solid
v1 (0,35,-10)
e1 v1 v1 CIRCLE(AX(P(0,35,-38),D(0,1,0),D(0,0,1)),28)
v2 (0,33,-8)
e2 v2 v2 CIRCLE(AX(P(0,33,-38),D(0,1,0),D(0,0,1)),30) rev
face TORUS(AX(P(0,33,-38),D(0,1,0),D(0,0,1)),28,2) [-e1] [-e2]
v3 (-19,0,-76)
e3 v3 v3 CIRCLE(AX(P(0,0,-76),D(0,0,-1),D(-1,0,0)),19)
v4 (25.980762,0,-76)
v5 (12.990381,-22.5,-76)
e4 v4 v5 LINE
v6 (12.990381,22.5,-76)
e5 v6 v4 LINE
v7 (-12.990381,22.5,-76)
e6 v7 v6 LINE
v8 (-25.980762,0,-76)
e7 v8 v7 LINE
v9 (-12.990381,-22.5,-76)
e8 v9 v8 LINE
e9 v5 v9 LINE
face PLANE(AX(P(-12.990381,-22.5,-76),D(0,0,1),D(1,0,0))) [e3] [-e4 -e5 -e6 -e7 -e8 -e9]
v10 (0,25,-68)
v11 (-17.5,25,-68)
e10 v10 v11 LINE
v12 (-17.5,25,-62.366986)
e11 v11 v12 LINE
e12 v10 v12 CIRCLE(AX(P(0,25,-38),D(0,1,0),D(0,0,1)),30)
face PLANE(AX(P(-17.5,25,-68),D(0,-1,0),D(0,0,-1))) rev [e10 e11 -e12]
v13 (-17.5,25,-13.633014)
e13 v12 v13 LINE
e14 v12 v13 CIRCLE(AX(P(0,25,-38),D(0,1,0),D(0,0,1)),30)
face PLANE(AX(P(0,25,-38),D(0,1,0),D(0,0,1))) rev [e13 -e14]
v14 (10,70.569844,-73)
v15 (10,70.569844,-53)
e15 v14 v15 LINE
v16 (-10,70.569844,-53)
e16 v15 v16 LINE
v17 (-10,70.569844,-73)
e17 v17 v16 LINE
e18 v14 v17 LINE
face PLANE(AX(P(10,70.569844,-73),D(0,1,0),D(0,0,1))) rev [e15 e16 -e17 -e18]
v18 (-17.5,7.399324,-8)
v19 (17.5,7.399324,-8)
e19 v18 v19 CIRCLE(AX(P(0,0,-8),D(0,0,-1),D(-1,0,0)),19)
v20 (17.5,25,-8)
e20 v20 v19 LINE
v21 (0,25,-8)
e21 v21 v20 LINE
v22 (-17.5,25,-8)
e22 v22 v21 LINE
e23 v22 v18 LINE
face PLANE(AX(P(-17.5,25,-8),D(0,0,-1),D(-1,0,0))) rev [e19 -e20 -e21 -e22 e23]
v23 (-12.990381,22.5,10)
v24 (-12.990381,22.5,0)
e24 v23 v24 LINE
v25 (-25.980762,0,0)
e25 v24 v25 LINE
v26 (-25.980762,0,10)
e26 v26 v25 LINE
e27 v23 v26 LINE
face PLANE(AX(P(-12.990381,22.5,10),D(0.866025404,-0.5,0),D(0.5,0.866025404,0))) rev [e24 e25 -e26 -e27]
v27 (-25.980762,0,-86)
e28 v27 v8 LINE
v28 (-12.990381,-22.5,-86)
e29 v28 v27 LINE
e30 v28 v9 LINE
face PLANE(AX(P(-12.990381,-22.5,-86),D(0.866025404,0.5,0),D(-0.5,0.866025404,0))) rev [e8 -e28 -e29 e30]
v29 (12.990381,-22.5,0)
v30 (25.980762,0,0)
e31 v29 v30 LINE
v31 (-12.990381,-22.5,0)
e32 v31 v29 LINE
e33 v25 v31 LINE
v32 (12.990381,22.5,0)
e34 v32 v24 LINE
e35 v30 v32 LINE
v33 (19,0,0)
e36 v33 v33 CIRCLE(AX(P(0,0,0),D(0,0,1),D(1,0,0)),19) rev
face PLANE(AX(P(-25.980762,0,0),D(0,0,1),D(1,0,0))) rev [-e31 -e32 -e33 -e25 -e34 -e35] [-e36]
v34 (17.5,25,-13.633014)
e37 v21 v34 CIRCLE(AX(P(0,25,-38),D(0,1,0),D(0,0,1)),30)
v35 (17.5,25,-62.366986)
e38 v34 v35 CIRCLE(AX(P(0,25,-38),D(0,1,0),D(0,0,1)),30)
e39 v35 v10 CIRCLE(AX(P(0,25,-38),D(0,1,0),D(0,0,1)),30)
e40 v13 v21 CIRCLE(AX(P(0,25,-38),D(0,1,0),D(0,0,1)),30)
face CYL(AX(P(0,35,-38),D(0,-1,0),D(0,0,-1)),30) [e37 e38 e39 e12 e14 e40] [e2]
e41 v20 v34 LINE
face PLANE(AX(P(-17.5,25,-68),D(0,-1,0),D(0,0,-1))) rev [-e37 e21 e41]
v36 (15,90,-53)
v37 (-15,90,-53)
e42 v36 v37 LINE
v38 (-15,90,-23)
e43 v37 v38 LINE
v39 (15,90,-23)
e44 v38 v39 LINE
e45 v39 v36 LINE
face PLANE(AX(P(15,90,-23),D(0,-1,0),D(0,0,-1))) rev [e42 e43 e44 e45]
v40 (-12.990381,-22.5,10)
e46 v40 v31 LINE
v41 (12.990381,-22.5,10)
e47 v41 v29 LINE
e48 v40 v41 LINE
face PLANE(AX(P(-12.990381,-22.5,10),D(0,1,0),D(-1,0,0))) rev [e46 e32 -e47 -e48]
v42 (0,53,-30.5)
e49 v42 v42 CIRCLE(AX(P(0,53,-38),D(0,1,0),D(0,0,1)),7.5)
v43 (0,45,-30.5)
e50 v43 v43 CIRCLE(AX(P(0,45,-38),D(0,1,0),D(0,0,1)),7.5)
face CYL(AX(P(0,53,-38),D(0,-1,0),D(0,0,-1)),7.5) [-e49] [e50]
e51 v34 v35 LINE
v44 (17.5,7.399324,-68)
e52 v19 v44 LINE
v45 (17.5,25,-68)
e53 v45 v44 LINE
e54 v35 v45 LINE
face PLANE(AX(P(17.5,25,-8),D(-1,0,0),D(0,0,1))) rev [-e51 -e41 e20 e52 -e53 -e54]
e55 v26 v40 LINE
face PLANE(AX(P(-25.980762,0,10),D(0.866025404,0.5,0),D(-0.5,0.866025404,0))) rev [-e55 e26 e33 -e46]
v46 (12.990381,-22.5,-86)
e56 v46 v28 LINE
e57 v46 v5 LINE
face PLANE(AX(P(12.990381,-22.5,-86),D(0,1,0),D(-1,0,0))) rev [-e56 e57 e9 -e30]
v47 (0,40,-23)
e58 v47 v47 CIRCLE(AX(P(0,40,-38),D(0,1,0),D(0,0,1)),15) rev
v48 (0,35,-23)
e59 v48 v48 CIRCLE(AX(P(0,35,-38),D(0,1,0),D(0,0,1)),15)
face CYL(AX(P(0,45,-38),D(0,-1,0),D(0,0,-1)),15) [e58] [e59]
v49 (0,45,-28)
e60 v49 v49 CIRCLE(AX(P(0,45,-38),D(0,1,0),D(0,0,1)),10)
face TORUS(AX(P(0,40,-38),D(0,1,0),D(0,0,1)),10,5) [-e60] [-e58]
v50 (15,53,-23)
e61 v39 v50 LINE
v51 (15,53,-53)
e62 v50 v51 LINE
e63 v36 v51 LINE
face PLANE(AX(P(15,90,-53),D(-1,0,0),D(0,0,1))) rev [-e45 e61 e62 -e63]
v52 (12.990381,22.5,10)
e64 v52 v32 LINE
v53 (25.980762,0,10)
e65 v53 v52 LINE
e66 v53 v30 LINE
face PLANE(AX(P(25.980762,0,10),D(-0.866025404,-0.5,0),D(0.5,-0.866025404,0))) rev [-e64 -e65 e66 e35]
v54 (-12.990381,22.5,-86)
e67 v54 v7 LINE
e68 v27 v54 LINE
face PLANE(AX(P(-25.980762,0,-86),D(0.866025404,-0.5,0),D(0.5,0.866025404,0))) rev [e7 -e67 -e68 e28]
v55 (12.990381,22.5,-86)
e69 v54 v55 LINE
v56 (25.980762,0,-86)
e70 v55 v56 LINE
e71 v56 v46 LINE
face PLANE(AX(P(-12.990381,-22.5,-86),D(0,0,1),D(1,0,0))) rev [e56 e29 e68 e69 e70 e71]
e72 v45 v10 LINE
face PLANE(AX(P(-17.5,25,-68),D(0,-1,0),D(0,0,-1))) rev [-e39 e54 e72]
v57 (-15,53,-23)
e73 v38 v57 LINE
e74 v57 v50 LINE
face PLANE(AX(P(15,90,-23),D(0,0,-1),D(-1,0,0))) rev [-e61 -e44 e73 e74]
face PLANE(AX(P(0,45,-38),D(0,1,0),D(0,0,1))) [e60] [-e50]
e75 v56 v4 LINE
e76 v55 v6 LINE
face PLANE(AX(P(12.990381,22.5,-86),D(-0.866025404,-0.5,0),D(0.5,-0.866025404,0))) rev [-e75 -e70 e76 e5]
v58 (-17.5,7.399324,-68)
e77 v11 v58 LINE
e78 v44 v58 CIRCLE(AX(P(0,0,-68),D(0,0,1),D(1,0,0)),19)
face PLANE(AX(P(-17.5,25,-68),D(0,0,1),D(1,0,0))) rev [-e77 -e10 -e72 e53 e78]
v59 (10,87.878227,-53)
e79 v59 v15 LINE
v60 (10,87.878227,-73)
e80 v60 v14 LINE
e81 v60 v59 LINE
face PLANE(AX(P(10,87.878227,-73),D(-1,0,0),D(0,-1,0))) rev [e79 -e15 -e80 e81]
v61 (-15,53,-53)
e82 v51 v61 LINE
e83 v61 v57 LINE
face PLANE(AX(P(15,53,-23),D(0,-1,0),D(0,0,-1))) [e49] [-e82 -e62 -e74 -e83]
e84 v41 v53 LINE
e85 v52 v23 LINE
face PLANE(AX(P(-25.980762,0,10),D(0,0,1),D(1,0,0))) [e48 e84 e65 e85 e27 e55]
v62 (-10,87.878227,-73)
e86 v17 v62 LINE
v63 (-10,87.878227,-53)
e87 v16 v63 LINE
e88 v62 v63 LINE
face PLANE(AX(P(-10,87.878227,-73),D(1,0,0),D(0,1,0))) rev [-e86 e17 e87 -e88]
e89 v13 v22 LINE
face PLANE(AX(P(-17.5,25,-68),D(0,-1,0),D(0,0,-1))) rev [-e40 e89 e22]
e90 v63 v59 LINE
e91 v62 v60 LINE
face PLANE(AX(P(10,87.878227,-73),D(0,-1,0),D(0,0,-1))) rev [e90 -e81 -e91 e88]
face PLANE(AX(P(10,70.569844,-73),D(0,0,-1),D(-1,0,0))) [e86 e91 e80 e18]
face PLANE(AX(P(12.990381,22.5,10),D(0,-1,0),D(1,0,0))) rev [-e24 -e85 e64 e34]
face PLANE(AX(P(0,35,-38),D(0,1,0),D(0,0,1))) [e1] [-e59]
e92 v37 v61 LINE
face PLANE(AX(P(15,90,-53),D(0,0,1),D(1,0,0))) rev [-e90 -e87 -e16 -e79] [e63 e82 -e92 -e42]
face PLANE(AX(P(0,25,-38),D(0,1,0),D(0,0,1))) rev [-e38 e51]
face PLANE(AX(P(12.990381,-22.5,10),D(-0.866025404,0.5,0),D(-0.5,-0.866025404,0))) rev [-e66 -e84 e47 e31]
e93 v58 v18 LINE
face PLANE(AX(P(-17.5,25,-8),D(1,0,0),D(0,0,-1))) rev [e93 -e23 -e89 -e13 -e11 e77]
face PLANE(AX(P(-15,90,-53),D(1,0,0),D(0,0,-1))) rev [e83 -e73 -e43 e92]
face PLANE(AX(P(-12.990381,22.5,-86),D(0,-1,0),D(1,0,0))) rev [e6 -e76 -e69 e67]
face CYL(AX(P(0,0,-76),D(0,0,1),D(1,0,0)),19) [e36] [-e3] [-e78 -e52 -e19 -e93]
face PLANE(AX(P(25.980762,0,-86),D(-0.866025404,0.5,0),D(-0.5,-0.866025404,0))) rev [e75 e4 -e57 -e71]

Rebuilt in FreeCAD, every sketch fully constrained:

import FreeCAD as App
import Part
import Sketcher

V = App.Vector
Q = App.Units.Quantity


def edges_at(feature, points):
    """Names of the edges that pass closest to the given points."""
    edges = feature.Shape.Edges
    near = lambda p: min(range(len(edges)), key=lambda i: edges[i].distToShape(Part.Vertex(*p))[0])
    return sorted({f"Edge{near(p) + 1}" for p in points})

doc = App.newDocument("Part")
params = doc.addObject("Spreadsheet::Sheet", "Params")
for row, (alias, value) in enumerate([
    ("pad1_length", "10 mm"),
    ("sketch2_diameter", "38 mm"),
    ("pad2_length", "76 mm"),
    ("pad3_length", "10 mm"),
    ("sketch4_width", "35 mm"),
    ("sketch4_height", "60 mm"),
    ("pad4_length", "25 mm"),
    ("sketch5_diameter", "60 mm"),
    ("pad5_length", "10 mm"),
    ("sketch6_diameter", "30 mm"),
    ("pad6_length", "10 mm"),
    ("fillet_radius", "5 mm"),
    ("sketch7_diameter", "15 mm"),
    ("pad7_length", "8 mm"),
    ("sketch8_width", "30 mm"),
    ("pad8_length", "37 mm"),
    ("fillet2_radius", "2 mm"),
    ("sketch9_width", "20 mm"),
    ("pad9_length", "20 mm"),
], start=1):
    params.set(f"A{row}", alias)
    params.set(f"B{row}", "=" + value)
    params.setAlias(f"B{row}", alias)

body = doc.addObject("PartDesign::Body", "Body")

sketch1 = body.newObject("Sketcher::SketchObject", "Sketch")
sketch1.AttachmentSupport = (doc.getObject("XY_Plane"), [""])
sketch1.MapMode = "FlatFace"
sketch1.addGeometry([
    Part.LineSegment(V(-26, 0, 0), V(-13, -22, 0)),
    Part.LineSegment(V(-13, -22, 0), V(13, -22, 0)),
    Part.LineSegment(V(13, -22, 0), V(26, 0, 0)),
    Part.LineSegment(V(26, 0, 0), V(13, 22, 0)),
    Part.LineSegment(V(13, 22, 0), V(-13, 22, 0)),
    Part.LineSegment(V(-13, 22, 0), V(-26, 0, 0)),
], False)
sketch1.addConstraint([
    Sketcher.Constraint("Coincident", 0, 2, 1, 1),
    Sketcher.Constraint("Coincident", 1, 2, 2, 1),
    Sketcher.Constraint("Coincident", 2, 2, 3, 1),
    Sketcher.Constraint("Coincident", 3, 2, 4, 1),
    Sketcher.Constraint("Coincident", 4, 2, 5, 1),
    Sketcher.Constraint("Coincident", 5, 2, 0, 1),
    Sketcher.Constraint("Horizontal", 1),
    Sketcher.Constraint("Horizontal", 4),
    Sketcher.Constraint("Symmetric", 0, 2, 3, 2, -1, 1),
    Sketcher.Constraint("Symmetric", 2, 2, 5, 2, -1, 1),
    Sketcher.Constraint("PointOnObject", 2, 2, -1),
    Sketcher.Constraint("Parallel", 2, 5),
    Sketcher.Constraint("Vertical", 1, 2, 3, 2),
    Sketcher.Constraint("Angle", 0, Q("-60 deg")),
    Sketcher.Constraint("DistanceY", 1, 2, 3, 2, Q("45 mm")),
    Sketcher.Constraint("DistanceX", 1, 1, 1, 2, Q("25.980762 mm")),
])
pad1 = body.newObject("PartDesign::Pad", "Pad")
pad1.Profile = sketch1
pad1.setExpression("Length", "Params.pad1_length")

sketch2 = body.newObject("Sketcher::SketchObject", "Sketch001")
sketch2.AttachmentSupport = (doc.getObject("XY_Plane"), [""])
sketch2.MapMode = "FlatFace"
sketch2.addGeometry(Part.Circle(V(0, 0, 0), V(0, 0, 1), 19), False)
sketch2.addConstraint([
    Sketcher.Constraint("Coincident", 0, 3, -1, 1),
    Sketcher.Constraint("Diameter", 0, Q("38 mm")),
])
sketch2.setExpression("Constraints[1]", "Params.sketch2_diameter")
pad2 = body.newObject("PartDesign::Pad", "Pad001")
pad2.Profile = sketch2
pad2.setExpression("Length", "Params.pad2_length")
pad2.Reversed = True

sketch3 = body.newObject("Sketcher::SketchObject", "Sketch002")
sketch3.AttachmentSupport = (doc.getObject("XY_Plane"), [""])
sketch3.MapMode = "FlatFace"
sketch3.AttachmentOffset = App.Placement(V(0, 0, -76), App.Rotation())
sketch3.addGeometry([
    Part.LineSegment(V(-26, 0, 0), V(-13, 22, 0)),
    Part.LineSegment(V(-13, 22, 0), V(13, 22, 0)),
    Part.LineSegment(V(13, 22, 0), V(26, 0, 0)),
    Part.LineSegment(V(26, 0, 0), V(13, -22, 0)),
    Part.LineSegment(V(13, -22, 0), V(-13, -22, 0)),
    Part.LineSegment(V(-13, -22, 0), V(-26, 0, 0)),
], False)
sketch3.addConstraint([
    Sketcher.Constraint("Coincident", 0, 2, 1, 1),
    Sketcher.Constraint("Coincident", 1, 2, 2, 1),
    Sketcher.Constraint("Coincident", 2, 2, 3, 1),
    Sketcher.Constraint("Coincident", 3, 2, 4, 1),
    Sketcher.Constraint("Coincident", 4, 2, 5, 1),
    Sketcher.Constraint("Coincident", 5, 2, 0, 1),
    Sketcher.Constraint("Horizontal", 1),
    Sketcher.Constraint("Horizontal", 4),
    Sketcher.Constraint("Symmetric", 0, 2, 3, 2, -1, 1),
    Sketcher.Constraint("Symmetric", 2, 2, 5, 2, -1, 1),
    Sketcher.Constraint("PointOnObject", 2, 2, -1),
    Sketcher.Constraint("Parallel", 2, 5),
    Sketcher.Constraint("Vertical", 1, 2, 3, 2),
    Sketcher.Constraint("Angle", 0, Q("60 deg")),
    Sketcher.Constraint("DistanceY", 3, 2, 1, 2, Q("45 mm")),
    Sketcher.Constraint("DistanceX", 1, 1, 1, 2, Q("25.980762 mm")),
])
pad3 = body.newObject("PartDesign::Pad", "Pad002")
pad3.Profile = sketch3
pad3.setExpression("Length", "Params.pad3_length")
pad3.Reversed = True

sketch4 = body.newObject("Sketcher::SketchObject", "Sketch003")
sketch4.AttachmentSupport = (doc.getObject("XZ_Plane"), [""])
sketch4.MapMode = "FlatFace"
sketch4.addGeometry([
    Part.LineSegment(V(-18, -68, 0), V(-18, -8, 0)),
    Part.LineSegment(V(-18, -8, 0), V(18, -8, 0)),
    Part.LineSegment(V(18, -8, 0), V(18, -68, 0)),
    Part.LineSegment(V(18, -68, 0), V(-18, -68, 0)),
], False)
sketch4.addConstraint([
    Sketcher.Constraint("Coincident", 0, 2, 1, 1),
    Sketcher.Constraint("Coincident", 1, 2, 2, 1),
    Sketcher.Constraint("Coincident", 2, 2, 3, 1),
    Sketcher.Constraint("Coincident", 3, 2, 0, 1),
    Sketcher.Constraint("Vertical", 0),
    Sketcher.Constraint("Horizontal", 1),
    Sketcher.Constraint("Vertical", 2),
    Sketcher.Constraint("Horizontal", 3),
    Sketcher.Constraint("DistanceX", 1, 1, 1, 2, Q("35 mm")),
    Sketcher.Constraint("DistanceY", 0, 1, 0, 2, Q("60 mm")),
    Sketcher.Constraint("DistanceY", 0, 2, -1, 1, Q("8 mm")),
    Sketcher.Constraint("DistanceX", 0, 2, -1, 1, Q("17.5 mm")),
])
sketch4.setExpression("Constraints[8]", "Params.sketch4_width")
sketch4.setExpression("Constraints[9]", "Params.sketch4_height")
pad4 = body.newObject("PartDesign::Pad", "Pad003")
pad4.Profile = sketch4
pad4.setExpression("Length", "Params.pad4_length")
pad4.Reversed = True

sketch5 = body.newObject("Sketcher::SketchObject", "Sketch004")
sketch5.AttachmentSupport = (doc.getObject("XZ_Plane"), [""])
sketch5.MapMode = "FlatFace"
sketch5.AttachmentOffset = App.Placement(V(0, 0, -25), App.Rotation())
sketch5.addGeometry(Part.Circle(V(0, -38, 0), V(0, 0, 1), 30), False)
sketch5.addConstraint([
    Sketcher.Constraint("PointOnObject", 0, 3, -2),
    Sketcher.Constraint("Diameter", 0, Q("60 mm")),
    Sketcher.Constraint("DistanceY", 0, 3, -1, 1, Q("38 mm")),
])
sketch5.setExpression("Constraints[1]", "Params.sketch5_diameter")
pad5 = body.newObject("PartDesign::Pad", "Pad004")
pad5.Profile = sketch5
pad5.setExpression("Length", "Params.pad5_length")
pad5.Reversed = True

sketch6 = body.newObject("Sketcher::SketchObject", "Sketch005")
sketch6.AttachmentSupport = (doc.getObject("XZ_Plane"), [""])
sketch6.MapMode = "FlatFace"
sketch6.AttachmentOffset = App.Placement(V(0, 0, -35), App.Rotation())
sketch6.addGeometry(Part.Circle(V(0, -38, 0), V(0, 0, 1), 15), False)
sketch6.addConstraint([
    Sketcher.Constraint("PointOnObject", 0, 3, -2),
    Sketcher.Constraint("Diameter", 0, Q("30 mm")),
    Sketcher.Constraint("DistanceY", 0, 3, -1, 1, Q("38 mm")),
])
sketch6.setExpression("Constraints[1]", "Params.sketch6_diameter")
pad6 = body.newObject("PartDesign::Pad", "Pad005")
pad6.Profile = sketch6
pad6.setExpression("Length", "Params.pad6_length")
pad6.Reversed = True
doc.recompute()

fillet = body.newObject("PartDesign::Fillet", "Fillet")
fillet.Base = (pad6, edges_at(pad6, [(0, 45, -53)]))
fillet.setExpression("Radius", "Params.fillet_radius")

sketch7 = body.newObject("Sketcher::SketchObject", "Sketch006")
sketch7.AttachmentSupport = (doc.getObject("XZ_Plane"), [""])
sketch7.MapMode = "FlatFace"
sketch7.AttachmentOffset = App.Placement(V(0, 0, -45), App.Rotation())
sketch7.addGeometry(Part.Circle(V(0, -38, 0), V(0, 0, 1), 8), False)
sketch7.addConstraint([
    Sketcher.Constraint("PointOnObject", 0, 3, -2),
    Sketcher.Constraint("Diameter", 0, Q("15 mm")),
    Sketcher.Constraint("DistanceY", 0, 3, -1, 1, Q("38 mm")),
])
sketch7.setExpression("Constraints[1]", "Params.sketch7_diameter")
pad7 = body.newObject("PartDesign::Pad", "Pad006")
pad7.Profile = sketch7
pad7.setExpression("Length", "Params.pad7_length")
pad7.Reversed = True

sketch8 = body.newObject("Sketcher::SketchObject", "Sketch007")
sketch8.AttachmentSupport = (doc.getObject("XZ_Plane"), [""])
sketch8.MapMode = "FlatFace"
sketch8.AttachmentOffset = App.Placement(V(0, 0, -53), App.Rotation())
sketch8.addGeometry([
    Part.LineSegment(V(-15, -53, 0), V(-15, -23, 0)),
    Part.LineSegment(V(-15, -23, 0), V(15, -23, 0)),
    Part.LineSegment(V(15, -23, 0), V(15, -53, 0)),
    Part.LineSegment(V(15, -53, 0), V(-15, -53, 0)),
], False)
sketch8.addConstraint([
    Sketcher.Constraint("Coincident", 0, 2, 1, 1),
    Sketcher.Constraint("Coincident", 1, 2, 2, 1),
    Sketcher.Constraint("Coincident", 2, 2, 3, 1),
    Sketcher.Constraint("Coincident", 3, 2, 0, 1),
    Sketcher.Constraint("Vertical", 0),
    Sketcher.Constraint("Horizontal", 1),
    Sketcher.Constraint("Vertical", 2),
    Sketcher.Constraint("Horizontal", 3),
    Sketcher.Constraint("Equal", 3, 0),
    Sketcher.Constraint("DistanceX", 1, 1, 1, 2, Q("30 mm")),
    Sketcher.Constraint("DistanceX", 0, 2, -1, 1, Q("15 mm")),
    Sketcher.Constraint("DistanceY", 0, 2, -1, 1, Q("23 mm")),
])
sketch8.setExpression("Constraints[9]", "Params.sketch8_width")
pad8 = body.newObject("PartDesign::Pad", "Pad007")
pad8.Profile = sketch8
pad8.setExpression("Length", "Params.pad8_length")
pad8.Reversed = True
doc.recompute()

fillet2 = body.newObject("PartDesign::Fillet", "Fillet001")
fillet2.Base = (pad8, edges_at(pad8, [(0, 35, -68)]))
fillet2.setExpression("Radius", "Params.fillet2_radius")

sketch9 = body.newObject("Sketcher::SketchObject", "Sketch008")
sketch9.AttachmentSupport = (doc.getObject("XY_Plane"), [""])
sketch9.MapMode = "FlatFace"
sketch9.AttachmentOffset = App.Placement(V(0, 0, -53), App.Rotation())
sketch9.addGeometry([
    Part.LineSegment(V(10, 88, 0), V(10, 71, 0)),
    Part.LineSegment(V(10, 71, 0), V(-10, 71, 0)),
    Part.LineSegment(V(-10, 71, 0), V(-10, 88, 0)),
    Part.LineSegment(V(-10, 88, 0), V(10, 88, 0)),
], False)
sketch9.addConstraint([
    Sketcher.Constraint("Coincident", 0, 2, 1, 1),
    Sketcher.Constraint("Coincident", 1, 2, 2, 1),
    Sketcher.Constraint("Coincident", 2, 2, 3, 1),
    Sketcher.Constraint("Coincident", 3, 2, 0, 1),
    Sketcher.Constraint("Vertical", 0),
    Sketcher.Constraint("Horizontal", 1),
    Sketcher.Constraint("Vertical", 2),
    Sketcher.Constraint("Horizontal", 3),
    Sketcher.Constraint("DistanceX", 1, 2, 1, 1, Q("20 mm")),
    Sketcher.Constraint("DistanceX", -1, 1, 0, 2, Q("10 mm")),
    Sketcher.Constraint("DistanceY", 0, 2, 0, 1, Q("17.308383 mm")),
    Sketcher.Constraint("DistanceY", -1, 1, 0, 2, Q("70.569844 mm")),
])
sketch9.setExpression("Constraints[8]", "Params.sketch9_width")
pad9 = body.newObject("PartDesign::Pad", "Pad008")
pad9.Profile = sketch9
pad9.setExpression("Length", "Params.pad9_length")
pad9.Reversed = True

doc.recompute()
